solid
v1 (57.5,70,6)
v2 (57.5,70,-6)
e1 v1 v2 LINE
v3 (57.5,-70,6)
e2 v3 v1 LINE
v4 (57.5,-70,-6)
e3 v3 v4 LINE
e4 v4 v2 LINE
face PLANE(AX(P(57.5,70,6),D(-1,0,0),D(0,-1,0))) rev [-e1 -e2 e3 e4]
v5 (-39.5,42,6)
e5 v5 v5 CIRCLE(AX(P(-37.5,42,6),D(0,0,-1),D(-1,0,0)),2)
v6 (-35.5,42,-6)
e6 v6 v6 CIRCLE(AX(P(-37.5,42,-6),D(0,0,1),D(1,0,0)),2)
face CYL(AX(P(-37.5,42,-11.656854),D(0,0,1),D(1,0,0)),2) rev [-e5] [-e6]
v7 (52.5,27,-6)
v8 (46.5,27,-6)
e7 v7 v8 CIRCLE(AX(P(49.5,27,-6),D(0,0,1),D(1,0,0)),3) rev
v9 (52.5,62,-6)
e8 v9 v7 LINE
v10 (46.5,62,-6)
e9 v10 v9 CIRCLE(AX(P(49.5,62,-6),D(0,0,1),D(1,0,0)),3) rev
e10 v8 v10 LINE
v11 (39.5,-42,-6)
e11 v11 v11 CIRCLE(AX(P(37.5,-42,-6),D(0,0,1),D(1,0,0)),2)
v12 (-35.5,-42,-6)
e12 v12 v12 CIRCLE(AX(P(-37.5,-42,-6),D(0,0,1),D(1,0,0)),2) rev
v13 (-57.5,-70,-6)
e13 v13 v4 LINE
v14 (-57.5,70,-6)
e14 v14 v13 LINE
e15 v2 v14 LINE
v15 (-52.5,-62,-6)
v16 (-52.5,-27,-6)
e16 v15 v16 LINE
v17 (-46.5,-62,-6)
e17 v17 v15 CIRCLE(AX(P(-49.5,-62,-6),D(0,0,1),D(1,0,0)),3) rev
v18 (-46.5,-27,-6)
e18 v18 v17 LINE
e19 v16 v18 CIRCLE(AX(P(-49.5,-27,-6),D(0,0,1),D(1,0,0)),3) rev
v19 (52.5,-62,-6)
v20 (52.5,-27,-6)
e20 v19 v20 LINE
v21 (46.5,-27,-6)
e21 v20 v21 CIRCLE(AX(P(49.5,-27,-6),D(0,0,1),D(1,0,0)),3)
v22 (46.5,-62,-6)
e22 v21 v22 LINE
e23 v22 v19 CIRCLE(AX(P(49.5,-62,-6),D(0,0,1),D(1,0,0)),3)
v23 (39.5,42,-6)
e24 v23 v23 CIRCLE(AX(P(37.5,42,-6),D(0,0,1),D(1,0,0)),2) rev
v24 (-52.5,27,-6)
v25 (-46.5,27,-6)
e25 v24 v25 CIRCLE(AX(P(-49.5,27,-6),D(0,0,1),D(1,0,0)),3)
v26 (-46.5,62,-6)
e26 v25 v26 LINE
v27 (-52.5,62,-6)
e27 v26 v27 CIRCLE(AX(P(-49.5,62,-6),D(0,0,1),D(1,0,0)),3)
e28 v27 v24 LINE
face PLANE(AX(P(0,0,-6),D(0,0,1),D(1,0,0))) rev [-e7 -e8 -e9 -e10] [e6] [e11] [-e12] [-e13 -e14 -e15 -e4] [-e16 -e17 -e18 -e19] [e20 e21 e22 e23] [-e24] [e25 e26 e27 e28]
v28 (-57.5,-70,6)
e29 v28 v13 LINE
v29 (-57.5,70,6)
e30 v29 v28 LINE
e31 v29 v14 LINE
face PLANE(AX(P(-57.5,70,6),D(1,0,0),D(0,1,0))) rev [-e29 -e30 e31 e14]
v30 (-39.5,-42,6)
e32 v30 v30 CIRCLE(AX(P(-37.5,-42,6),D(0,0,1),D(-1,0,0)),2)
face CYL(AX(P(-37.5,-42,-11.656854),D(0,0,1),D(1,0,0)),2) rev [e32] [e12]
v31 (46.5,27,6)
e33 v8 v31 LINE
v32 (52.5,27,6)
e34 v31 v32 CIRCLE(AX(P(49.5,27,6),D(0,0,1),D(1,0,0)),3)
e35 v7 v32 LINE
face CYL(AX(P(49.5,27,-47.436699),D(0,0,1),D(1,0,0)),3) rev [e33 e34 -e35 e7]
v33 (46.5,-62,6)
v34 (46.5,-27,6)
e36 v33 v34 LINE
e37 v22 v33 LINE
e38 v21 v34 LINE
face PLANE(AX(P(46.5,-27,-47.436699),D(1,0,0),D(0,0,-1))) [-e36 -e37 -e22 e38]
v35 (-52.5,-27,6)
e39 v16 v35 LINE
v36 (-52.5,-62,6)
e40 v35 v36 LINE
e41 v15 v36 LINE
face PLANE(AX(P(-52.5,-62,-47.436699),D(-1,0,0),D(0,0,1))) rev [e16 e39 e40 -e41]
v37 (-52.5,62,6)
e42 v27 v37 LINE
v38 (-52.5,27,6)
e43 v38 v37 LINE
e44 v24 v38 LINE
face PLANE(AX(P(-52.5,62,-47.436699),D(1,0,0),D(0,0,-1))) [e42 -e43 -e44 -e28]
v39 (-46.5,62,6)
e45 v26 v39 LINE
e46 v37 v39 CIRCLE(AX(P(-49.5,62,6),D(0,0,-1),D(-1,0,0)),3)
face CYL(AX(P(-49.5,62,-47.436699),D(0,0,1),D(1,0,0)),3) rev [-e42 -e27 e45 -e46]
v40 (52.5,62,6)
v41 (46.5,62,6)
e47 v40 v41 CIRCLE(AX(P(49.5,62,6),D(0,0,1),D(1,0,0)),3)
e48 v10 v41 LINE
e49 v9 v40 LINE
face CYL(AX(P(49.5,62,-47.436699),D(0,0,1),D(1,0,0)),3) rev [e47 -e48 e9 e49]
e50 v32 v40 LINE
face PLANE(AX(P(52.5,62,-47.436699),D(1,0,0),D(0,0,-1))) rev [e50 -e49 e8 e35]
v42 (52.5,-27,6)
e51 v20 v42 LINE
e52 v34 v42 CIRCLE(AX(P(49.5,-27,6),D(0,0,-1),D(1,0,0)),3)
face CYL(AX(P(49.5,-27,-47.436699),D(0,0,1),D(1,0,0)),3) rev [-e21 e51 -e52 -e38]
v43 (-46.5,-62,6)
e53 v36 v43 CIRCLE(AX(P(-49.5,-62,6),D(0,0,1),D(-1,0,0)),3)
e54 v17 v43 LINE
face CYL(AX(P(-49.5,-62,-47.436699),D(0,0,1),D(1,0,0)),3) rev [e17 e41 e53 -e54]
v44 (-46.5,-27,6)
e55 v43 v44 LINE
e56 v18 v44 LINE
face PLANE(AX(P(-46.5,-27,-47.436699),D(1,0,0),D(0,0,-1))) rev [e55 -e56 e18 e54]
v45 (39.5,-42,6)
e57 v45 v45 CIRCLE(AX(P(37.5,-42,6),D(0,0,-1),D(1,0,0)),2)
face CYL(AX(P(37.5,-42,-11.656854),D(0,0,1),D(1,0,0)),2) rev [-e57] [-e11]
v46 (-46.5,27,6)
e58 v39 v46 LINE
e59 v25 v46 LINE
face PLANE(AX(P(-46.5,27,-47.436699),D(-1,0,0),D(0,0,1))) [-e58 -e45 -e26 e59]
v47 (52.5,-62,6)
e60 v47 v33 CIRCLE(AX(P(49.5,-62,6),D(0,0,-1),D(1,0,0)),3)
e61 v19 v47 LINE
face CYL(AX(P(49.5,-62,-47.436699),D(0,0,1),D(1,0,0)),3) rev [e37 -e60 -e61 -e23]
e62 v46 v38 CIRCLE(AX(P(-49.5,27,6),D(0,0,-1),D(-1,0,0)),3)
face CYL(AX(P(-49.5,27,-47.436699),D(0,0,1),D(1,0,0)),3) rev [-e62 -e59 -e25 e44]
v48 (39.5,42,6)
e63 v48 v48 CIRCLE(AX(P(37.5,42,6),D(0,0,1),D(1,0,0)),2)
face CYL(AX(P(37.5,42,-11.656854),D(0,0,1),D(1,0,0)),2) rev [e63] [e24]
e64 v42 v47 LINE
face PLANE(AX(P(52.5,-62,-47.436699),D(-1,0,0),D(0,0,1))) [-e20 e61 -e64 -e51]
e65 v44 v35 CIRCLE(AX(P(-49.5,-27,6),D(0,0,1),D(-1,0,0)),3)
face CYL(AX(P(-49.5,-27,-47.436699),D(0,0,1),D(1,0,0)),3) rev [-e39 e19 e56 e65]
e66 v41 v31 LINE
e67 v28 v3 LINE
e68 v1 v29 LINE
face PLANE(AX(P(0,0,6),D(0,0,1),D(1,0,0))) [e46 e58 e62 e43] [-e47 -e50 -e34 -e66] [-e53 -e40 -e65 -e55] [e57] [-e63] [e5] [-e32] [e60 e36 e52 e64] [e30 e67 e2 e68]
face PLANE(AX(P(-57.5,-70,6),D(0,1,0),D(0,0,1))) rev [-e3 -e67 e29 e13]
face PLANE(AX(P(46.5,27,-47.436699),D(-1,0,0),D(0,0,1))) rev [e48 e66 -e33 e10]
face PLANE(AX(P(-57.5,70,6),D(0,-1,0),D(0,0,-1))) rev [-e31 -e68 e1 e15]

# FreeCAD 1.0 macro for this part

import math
import FreeCAD as App
import Part
import Sketcher

V = App.Vector
Q = App.Units.Quantity


def add_polygon(sketch, points):
    """Adds a closed chain of lines whose ends are joined by coincident constraints."""
    first, n = sketch.GeometryCount, len(points)
    for a, b in zip(points, points[1:] + points[:1]):
        sketch.addGeometry(Part.LineSegment(App.Vector(*a, 0), App.Vector(*b, 0)), False)
    for i in range(n):
        sketch.addConstraint(Sketcher.Constraint("Coincident", first + i, 2, first + (i + 1) % n, 1))

doc = App.newDocument("Part")
params = doc.addObject("Spreadsheet::Sheet", "Params")
for row, (alias, value) in enumerate([
    ("sketch1_width", "115 mm"),
    ("sketch1_height", "140 mm"),
    ("pad1_length", "12 mm"),
    ("sketch2_radius", "3 mm"),
    ("sketch2_height", "35 mm"),
    ("pocket1_length", "12 mm"),
    ("sketch3_diameter", "4 mm"),
    ("pocket2_length", "12 mm"),
    ("sketch4_radius", "3 mm"),
    ("sketch4_height", "35 mm"),
    ("pocket3_length", "12 mm"),
    ("sketch5_diameter", "4 mm"),
    ("pocket4_length", "12 mm"),
], start=1):
    params.set(f"A{row}", alias)
    params.set(f"B{row}", "=" + value)
    params.setAlias(f"B{row}", alias)

body = doc.addObject("PartDesign::Body", "Body")

sketch1 = body.newObject("Sketcher::SketchObject", "Sketch")
sketch1.AttachmentSupport = (doc.getObject("XY_Plane"), [""])
sketch1.MapMode = "FlatFace"
add_polygon(sketch1, [(-57.5, 70), (-57.5, -70), (57.5, -70), (57.5, 70)])
sketch1.addConstraint([
    Sketcher.Constraint("Vertical", 0),
    Sketcher.Constraint("Horizontal", 1),
    Sketcher.Constraint("Vertical", 2),
    Sketcher.Constraint("Horizontal", 3),
    Sketcher.Constraint("Symmetric", 0, 2, 2, 2, -1, 1),
    Sketcher.Constraint("DistanceX", 1, 1, 1, 2, Q("115 mm")),
    Sketcher.Constraint("DistanceY", 0, 2, 0, 1, Q("140 mm")),
])
sketch1.setExpression("Constraints[9]", "Params.sketch1_width")
sketch1.setExpression("Constraints[10]", "Params.sketch1_height")
pad1 = body.newObject("PartDesign::Pad", "Pad")
pad1.Profile = sketch1
pad1.setExpression("Length", "Params.pad1_length")
pad1.Midplane = True

sketch2 = body.newObject("Sketcher::SketchObject", "Sketch001")
sketch2.AttachmentSupport = (doc.getObject("XY_Plane"), [""])
sketch2.MapMode = "FlatFace"
sketch2.AttachmentOffset = App.Placement(V(0, 0, 6), App.Rotation())
sketch2.addGeometry([
    Part.LineSegment(V(52.5, 27, 0), V(52.5, 62, 0)),
    Part.ArcOfCircle(Part.Circle(V(49.5, 62, 0), V(0, 0, 1), 3), math.radians(0), math.radians(180)),
    Part.LineSegment(V(46.5, 62, 0), V(46.5, 27, 0)),
    Part.ArcOfCircle(Part.Circle(V(49.5, 27, 0), V(0, 0, 1), 3), math.radians(180), math.radians(360)),
], False)
sketch2.addConstraint([
    Sketcher.Constraint("Tangent", 0, 2, 1, 1),
    Sketcher.Constraint("Tangent", 1, 2, 2, 1),
    Sketcher.Constraint("Tangent", 2, 2, 3, 1),
    Sketcher.Constraint("Tangent", 3, 2, 0, 1),
    Sketcher.Constraint("Vertical", 0),
    Sketcher.Constraint("Vertical", 2),
    Sketcher.Constraint("Radius", 1, Q("3 mm")),
    Sketcher.Constraint("DistanceY", 0, 1, 0, 2, Q("35 mm")),
    Sketcher.Constraint("DistanceY", -1, 1, 1, 3, Q("62 mm")),
    Sketcher.Constraint("DistanceX", -1, 1, 1, 3, Q("49.5 mm")),
])
sketch2.setExpression("Constraints[6]", "Params.sketch2_radius")
sketch2.setExpression("Constraints[7]", "Params.sketch2_height")
pocket1 = body.newObject("PartDesign::Pocket", "Pocket")
pocket1.Profile = sketch2
pocket1.setExpression("Length", "Params.pocket1_length")

sketch3 = body.newObject("Sketcher::SketchObject", "Sketch002")
sketch3.AttachmentSupport = (doc.getObject("XY_Plane"), [""])
sketch3.MapMode = "FlatFace"
sketch3.AttachmentOffset = App.Placement(V(0, 0, 6), App.Rotation())
sketch3.addGeometry(Part.Circle(V(37.5, 42, 0), V(0, 0, 1), 2), False)
sketch3.addConstraint([
    Sketcher.Constraint("Diameter", 0, Q("4 mm")),
    Sketcher.Constraint("DistanceY", -1, 1, 0, 3, Q("42 mm")),
    Sketcher.Constraint("DistanceX", -1, 1, 0, 3, Q("37.5 mm")),
])
sketch3.setExpression("Constraints[0]", "Params.sketch3_diameter")
pocket2 = body.newObject("PartDesign::Pocket", "Pocket001")
pocket2.Profile = sketch3
pocket2.setExpression("Length", "Params.pocket2_length")
doc.recompute()

mirrored = body.newObject("PartDesign::Mirrored", "Mirrored")
mirrored.Originals = [pocket1, pocket2]
mirrored.MirrorPlane = (doc.getObject("XZ_Plane"), [""])
body.Tip = mirrored
doc.recompute()

mirrored2 = body.newObject("PartDesign::Mirrored", "Mirrored001")
mirrored2.Originals = [pocket1, pocket2]
mirrored2.MirrorPlane = (doc.getObject("YZ_Plane"), [""])
body.Tip = mirrored2

sketch4 = body.newObject("Sketcher::SketchObject", "Sketch003")
sketch4.AttachmentSupport = (doc.getObject("XY_Plane"), [""])
sketch4.MapMode = "FlatFace"
sketch4.AttachmentOffset = App.Placement(V(0, 0, 6), App.Rotation())
sketch4.addGeometry([
    Part.LineSegment(V(-52.5, -27, 0), V(-52.5, -62, 0)),
    Part.ArcOfCircle(Part.Circle(V(-49.5, -62, 0), V(0, 0, 1), 3), math.radians(180), math.radians(360)),
    Part.LineSegment(V(-46.5, -62, 0), V(-46.5, -27, 0)),
    Part.ArcOfCircle(Part.Circle(V(-49.5, -27, 0), V(0, 0, 1), 3), math.radians(0), math.radians(180)),
], False)
sketch4.addConstraint([
    Sketcher.Constraint("Tangent", 0, 2, 1, 1),
    Sketcher.Constraint("Tangent", 1, 2, 2, 1),
    Sketcher.Constraint("Tangent", 2, 2, 3, 1),
    Sketcher.Constraint("Tangent", 3, 2, 0, 1),
    Sketcher.Constraint("Vertical", 0),
    Sketcher.Constraint("Vertical", 2),
    Sketcher.Constraint("Radius", 1, Q("3 mm")),
    Sketcher.Constraint("DistanceY", 0, 2, 0, 1, Q("35 mm")),
    Sketcher.Constraint("DistanceY", 1, 3, -1, 1, Q("62 mm")),
    Sketcher.Constraint("DistanceX", 1, 3, -1, 1, Q("49.5 mm")),
])
sketch4.setExpression("Constraints[6]", "Params.sketch4_radius")
sketch4.setExpression("Constraints[7]", "Params.sketch4_height")
pocket3 = body.newObject("PartDesign::Pocket", "Pocket002")
pocket3.Profile = sketch4
pocket3.setExpression("Length", "Params.pocket3_length")

sketch5 = body.newObject("Sketcher::SketchObject", "Sketch004")
sketch5.AttachmentSupport = (doc.getObject("XY_Plane"), [""])
sketch5.MapMode = "FlatFace"
sketch5.AttachmentOffset = App.Placement(V(0, 0, 6), App.Rotation())
sketch5.addGeometry(Part.Circle(V(-37.5, -42, 0), V(0, 0, 1), 2), False)
sketch5.addConstraint([
    Sketcher.Constraint("Diameter", 0, Q("4 mm")),
    Sketcher.Constraint("DistanceY", 0, 3, -1, 1, Q("42 mm")),
    Sketcher.Constraint("DistanceX", 0, 3, -1, 1, Q("37.5 mm")),
])
sketch5.setExpression("Constraints[0]", "Params.sketch5_diameter")
pocket4 = body.newObject("PartDesign::Pocket", "Pocket003")
pocket4.Profile = sketch5
pocket4.setExpression("Length", "Params.pocket4_length")

doc.recompute()
